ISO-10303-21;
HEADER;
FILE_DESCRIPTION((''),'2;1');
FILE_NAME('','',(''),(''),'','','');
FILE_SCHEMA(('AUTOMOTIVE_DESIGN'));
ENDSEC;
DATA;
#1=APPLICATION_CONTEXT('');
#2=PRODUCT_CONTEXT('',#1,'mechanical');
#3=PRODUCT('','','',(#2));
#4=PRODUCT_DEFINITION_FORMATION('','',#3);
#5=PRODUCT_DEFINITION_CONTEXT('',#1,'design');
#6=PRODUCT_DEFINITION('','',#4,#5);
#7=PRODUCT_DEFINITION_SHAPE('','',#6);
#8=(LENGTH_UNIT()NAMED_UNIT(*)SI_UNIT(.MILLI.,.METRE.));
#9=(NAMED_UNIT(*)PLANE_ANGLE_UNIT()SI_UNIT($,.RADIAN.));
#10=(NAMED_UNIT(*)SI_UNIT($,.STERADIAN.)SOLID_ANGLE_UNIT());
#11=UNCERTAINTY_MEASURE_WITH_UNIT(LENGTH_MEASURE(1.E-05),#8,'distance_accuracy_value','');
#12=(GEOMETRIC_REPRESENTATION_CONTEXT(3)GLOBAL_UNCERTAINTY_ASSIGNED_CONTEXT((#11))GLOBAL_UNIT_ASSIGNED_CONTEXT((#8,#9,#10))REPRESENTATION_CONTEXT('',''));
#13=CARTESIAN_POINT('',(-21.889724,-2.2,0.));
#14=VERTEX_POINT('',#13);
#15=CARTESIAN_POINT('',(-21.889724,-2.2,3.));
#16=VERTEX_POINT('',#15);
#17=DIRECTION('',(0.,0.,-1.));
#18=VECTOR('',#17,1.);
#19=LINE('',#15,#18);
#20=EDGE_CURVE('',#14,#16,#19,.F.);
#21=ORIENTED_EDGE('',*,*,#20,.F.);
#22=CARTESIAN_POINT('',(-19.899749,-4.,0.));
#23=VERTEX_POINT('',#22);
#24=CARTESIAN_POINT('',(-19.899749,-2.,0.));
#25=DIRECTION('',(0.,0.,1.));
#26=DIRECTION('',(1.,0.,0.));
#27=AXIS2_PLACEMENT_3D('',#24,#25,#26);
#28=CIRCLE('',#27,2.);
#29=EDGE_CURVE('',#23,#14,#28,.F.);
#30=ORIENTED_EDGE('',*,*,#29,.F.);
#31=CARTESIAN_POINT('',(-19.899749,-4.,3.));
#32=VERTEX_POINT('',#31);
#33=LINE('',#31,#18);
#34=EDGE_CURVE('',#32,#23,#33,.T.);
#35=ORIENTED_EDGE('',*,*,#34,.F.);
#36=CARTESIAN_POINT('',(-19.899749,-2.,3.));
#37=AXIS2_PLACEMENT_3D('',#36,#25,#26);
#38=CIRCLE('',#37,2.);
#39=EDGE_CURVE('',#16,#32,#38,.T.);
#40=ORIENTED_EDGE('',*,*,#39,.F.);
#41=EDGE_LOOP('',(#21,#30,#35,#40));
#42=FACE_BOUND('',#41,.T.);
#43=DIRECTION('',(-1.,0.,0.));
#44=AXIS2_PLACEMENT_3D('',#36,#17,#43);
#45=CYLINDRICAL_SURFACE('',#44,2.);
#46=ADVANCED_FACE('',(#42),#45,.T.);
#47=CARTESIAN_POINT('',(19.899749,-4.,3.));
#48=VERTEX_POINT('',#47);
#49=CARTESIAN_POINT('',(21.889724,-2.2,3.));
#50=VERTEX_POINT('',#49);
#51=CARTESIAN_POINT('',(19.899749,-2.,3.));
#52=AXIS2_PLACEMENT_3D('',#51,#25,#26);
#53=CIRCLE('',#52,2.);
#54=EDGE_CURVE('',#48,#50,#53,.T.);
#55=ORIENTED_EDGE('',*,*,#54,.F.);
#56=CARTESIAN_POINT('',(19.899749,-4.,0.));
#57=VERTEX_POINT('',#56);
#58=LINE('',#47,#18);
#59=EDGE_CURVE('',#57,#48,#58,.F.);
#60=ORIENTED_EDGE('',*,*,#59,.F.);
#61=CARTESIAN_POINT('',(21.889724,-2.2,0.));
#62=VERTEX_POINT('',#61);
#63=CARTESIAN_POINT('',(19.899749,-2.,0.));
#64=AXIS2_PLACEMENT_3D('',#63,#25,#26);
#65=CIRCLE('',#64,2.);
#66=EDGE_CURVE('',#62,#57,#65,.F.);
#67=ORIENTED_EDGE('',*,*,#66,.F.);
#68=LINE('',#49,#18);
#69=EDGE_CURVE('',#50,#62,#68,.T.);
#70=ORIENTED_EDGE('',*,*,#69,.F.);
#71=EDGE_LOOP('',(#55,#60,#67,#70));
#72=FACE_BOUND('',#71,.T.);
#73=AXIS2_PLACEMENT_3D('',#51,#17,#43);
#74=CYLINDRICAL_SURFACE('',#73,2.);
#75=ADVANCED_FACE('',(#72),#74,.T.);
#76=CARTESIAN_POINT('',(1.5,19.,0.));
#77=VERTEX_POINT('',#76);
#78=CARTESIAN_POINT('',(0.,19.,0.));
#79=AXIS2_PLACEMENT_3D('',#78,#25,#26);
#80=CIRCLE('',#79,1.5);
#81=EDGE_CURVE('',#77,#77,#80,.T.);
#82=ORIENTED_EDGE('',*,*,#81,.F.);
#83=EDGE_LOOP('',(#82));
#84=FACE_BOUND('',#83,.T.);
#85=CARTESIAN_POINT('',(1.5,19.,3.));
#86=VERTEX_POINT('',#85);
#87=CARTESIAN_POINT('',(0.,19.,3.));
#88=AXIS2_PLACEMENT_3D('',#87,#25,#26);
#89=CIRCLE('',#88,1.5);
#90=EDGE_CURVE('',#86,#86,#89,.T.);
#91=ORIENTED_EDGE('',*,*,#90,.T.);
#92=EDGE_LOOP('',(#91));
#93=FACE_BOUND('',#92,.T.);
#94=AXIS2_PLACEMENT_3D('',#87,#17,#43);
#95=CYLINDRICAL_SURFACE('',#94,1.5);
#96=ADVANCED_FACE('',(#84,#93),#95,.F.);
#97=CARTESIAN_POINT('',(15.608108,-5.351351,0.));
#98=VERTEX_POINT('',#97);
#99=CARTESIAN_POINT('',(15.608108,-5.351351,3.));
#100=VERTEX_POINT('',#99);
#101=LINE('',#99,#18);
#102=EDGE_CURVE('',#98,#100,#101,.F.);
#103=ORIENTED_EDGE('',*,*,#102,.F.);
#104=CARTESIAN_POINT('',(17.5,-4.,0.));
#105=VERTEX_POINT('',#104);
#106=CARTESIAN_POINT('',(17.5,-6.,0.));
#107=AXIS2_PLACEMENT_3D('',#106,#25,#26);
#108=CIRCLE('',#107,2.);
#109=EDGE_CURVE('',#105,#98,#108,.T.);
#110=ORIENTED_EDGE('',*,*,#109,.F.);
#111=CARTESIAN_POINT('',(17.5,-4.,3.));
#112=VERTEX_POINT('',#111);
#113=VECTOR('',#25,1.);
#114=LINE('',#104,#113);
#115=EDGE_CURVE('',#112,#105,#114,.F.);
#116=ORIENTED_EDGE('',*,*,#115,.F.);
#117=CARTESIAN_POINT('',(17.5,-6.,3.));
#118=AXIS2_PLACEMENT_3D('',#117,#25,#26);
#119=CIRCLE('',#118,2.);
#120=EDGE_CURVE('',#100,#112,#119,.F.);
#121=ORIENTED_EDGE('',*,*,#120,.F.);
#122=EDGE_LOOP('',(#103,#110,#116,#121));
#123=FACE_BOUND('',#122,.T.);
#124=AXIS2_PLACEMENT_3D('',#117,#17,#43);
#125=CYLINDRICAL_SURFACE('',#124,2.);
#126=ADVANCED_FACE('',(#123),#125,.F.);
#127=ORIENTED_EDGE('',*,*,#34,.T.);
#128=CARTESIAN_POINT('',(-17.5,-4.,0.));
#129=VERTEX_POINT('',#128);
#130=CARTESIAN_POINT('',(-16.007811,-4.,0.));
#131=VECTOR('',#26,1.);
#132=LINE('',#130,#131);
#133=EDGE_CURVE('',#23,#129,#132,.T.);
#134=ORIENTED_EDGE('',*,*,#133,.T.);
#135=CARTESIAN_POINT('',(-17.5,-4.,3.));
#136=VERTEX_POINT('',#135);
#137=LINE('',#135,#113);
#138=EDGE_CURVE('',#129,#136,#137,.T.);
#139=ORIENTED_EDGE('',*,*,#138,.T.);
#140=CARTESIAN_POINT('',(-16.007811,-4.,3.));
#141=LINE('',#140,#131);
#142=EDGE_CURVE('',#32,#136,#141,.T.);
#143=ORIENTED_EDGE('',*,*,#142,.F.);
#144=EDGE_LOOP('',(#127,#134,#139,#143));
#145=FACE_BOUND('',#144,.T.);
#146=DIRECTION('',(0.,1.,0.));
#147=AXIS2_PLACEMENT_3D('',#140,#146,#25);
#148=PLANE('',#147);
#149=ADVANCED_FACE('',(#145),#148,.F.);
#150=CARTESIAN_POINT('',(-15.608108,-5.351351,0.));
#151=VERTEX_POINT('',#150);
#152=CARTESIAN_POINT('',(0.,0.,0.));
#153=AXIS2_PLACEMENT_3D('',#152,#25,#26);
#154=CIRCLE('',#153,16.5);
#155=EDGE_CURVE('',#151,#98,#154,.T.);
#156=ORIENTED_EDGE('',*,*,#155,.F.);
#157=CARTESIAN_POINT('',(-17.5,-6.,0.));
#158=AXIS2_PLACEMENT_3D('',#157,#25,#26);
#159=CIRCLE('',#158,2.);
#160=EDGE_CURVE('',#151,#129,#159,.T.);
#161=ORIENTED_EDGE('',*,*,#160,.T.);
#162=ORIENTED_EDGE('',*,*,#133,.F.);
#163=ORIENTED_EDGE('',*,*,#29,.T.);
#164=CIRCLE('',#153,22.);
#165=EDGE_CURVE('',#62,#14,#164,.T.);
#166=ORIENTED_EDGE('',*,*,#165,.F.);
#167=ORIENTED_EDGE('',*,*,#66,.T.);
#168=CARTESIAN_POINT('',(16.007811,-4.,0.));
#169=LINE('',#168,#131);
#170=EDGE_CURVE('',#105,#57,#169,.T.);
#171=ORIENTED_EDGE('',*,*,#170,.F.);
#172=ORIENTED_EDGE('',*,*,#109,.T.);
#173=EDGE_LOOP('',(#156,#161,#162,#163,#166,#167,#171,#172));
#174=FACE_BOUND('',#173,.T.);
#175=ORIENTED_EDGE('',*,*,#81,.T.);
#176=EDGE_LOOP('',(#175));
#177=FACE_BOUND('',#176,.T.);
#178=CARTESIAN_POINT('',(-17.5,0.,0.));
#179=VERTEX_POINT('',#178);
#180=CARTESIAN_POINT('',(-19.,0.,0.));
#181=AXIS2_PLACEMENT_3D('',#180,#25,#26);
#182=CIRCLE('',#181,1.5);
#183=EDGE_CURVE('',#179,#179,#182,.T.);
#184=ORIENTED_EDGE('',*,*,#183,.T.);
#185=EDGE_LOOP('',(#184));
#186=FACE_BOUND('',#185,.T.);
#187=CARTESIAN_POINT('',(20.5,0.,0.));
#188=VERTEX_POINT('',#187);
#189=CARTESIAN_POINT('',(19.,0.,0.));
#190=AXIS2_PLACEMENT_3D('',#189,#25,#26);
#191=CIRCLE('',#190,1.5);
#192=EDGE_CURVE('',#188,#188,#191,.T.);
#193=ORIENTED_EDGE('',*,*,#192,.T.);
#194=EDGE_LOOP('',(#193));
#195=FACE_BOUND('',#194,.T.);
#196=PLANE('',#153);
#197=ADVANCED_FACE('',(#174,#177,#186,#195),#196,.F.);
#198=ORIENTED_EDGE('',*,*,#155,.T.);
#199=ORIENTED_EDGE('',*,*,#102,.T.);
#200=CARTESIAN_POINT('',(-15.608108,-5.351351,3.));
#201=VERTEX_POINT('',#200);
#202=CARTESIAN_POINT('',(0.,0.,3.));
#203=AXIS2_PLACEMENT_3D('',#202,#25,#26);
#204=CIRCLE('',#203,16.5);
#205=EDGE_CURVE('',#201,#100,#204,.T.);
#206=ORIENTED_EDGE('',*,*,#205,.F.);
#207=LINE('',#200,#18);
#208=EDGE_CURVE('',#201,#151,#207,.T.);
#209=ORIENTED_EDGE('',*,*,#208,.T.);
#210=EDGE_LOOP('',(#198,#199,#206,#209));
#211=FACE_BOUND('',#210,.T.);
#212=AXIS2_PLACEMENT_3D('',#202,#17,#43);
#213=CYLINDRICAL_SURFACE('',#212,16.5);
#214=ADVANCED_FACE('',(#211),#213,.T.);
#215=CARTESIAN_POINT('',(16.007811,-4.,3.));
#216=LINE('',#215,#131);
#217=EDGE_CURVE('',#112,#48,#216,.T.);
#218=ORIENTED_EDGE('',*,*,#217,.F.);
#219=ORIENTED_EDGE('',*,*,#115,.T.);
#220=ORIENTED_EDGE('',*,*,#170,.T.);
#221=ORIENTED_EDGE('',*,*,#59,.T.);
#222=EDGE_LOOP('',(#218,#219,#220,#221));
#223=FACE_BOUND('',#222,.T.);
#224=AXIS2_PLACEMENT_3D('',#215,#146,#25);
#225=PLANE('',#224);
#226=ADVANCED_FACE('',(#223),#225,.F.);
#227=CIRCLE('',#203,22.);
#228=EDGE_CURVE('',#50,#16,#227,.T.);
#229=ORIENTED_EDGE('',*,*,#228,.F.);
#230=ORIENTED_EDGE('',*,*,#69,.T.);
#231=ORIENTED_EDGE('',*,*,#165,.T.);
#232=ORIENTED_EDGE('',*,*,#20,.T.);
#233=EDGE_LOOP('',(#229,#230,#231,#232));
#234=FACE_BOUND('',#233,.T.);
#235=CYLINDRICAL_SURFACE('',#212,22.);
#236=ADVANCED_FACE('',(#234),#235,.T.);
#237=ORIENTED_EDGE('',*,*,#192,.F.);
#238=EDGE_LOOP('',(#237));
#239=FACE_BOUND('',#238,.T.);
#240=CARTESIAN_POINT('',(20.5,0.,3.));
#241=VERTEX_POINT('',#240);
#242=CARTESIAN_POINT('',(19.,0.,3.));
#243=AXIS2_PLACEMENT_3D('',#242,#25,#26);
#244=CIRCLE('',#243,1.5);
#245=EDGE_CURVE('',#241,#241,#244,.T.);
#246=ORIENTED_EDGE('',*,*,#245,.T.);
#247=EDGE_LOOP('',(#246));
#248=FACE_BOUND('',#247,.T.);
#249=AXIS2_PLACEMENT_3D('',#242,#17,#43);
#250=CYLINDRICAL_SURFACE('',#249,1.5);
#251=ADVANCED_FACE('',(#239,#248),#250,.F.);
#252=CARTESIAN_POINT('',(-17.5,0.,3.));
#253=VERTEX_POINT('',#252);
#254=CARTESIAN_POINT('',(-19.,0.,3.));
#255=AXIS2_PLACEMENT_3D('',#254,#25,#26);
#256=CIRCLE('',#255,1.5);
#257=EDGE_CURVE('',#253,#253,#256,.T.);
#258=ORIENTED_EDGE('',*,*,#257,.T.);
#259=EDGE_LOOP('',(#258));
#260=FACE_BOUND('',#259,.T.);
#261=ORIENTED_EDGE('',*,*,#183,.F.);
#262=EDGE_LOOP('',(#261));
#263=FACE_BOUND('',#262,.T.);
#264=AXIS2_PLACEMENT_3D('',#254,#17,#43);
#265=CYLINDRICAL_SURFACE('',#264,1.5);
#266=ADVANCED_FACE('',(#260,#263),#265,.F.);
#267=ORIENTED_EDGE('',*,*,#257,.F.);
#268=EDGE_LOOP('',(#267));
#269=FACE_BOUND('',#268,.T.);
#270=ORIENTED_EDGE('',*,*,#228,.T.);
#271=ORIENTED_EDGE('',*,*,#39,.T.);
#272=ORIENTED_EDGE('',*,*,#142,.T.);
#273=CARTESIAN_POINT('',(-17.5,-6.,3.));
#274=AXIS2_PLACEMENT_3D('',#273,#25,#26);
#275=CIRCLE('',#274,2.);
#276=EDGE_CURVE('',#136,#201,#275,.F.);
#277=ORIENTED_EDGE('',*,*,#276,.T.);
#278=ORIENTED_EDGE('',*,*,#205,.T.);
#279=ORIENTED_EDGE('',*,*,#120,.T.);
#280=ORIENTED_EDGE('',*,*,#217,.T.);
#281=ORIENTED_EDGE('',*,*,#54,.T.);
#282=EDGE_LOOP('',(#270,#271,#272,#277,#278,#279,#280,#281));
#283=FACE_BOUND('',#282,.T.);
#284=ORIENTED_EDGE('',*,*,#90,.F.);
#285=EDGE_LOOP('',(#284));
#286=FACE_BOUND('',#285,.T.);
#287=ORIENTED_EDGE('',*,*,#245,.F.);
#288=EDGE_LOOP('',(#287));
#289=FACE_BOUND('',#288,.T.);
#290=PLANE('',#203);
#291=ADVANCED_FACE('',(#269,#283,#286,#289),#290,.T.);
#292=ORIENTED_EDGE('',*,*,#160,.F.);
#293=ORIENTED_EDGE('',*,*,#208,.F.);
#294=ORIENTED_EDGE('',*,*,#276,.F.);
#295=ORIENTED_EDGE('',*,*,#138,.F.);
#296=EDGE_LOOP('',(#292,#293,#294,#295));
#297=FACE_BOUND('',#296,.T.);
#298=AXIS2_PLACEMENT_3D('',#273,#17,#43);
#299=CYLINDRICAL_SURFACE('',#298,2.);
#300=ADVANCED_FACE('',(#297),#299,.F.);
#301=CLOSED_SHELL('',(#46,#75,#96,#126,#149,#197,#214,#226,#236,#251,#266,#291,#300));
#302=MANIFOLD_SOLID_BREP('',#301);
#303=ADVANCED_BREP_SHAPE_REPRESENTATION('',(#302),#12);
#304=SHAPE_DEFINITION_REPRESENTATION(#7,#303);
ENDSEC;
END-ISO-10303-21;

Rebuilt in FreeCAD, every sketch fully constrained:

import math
import FreeCAD as App
import Part
import Sketcher
Q = App.Units.Quantity


def edges_at(feature, points):
    """Names of the edges that pass closest to the given points."""
    edges = feature.Shape.Edges
    near = lambda p: min(range(len(edges)), key=lambda i: edges[i].distToShape(Part.Vertex(*p))[0])
    return sorted({f"Edge{near(p) + 1}" for p in points})

doc = App.newDocument("Part")
body = doc.addObject("PartDesign::Body", "Body")

# Sketch on XY plane
sketch1 = body.newObject("Sketcher::SketchObject", "Sketch")
sketch1.AttachmentSupport = (doc.getObject("XY_Plane"), [""])
sketch1.MapMode = "FlatFace"
sketch1.addGeometry([
    Part.LineSegment(App.Vector(-21.633308, -4, 0), App.Vector(-16.007811, -4, 0)),  # 0
    Part.ArcOfCircle(Part.Circle(App.Vector(0, 0, 0), App.Vector(0, 0, 1), 16.5), math.radians(-165.970335), math.radians(-14.029665)),  # 1
    Part.LineSegment(App.Vector(16.007811, -4, 0), App.Vector(21.633308, -4, 0)),  # 2
    Part.ArcOfCircle(Part.Circle(App.Vector(0, 0, 0), App.Vector(0, 0, 1), 22), math.radians(-10.475682), math.radians(190.475682)),  # 3
    Part.Circle(App.Vector(19, 0, 0), App.Vector(0, 0, 1), 1.5),  # 4
    Part.Circle(App.Vector(-19, 0, 0), App.Vector(0, 0, 1), 1.5),  # 5
    Part.Circle(App.Vector(0, 19, 0), App.Vector(0, 0, 1), 1.5),  # 6
], False)
sketch1.addConstraint([
    Sketcher.Constraint("Coincident", 0, 2, 1, 1),
    Sketcher.Constraint("Coincident", 1, 2, 2, 1),
    Sketcher.Constraint("Coincident", 2, 2, 3, 1),
    Sketcher.Constraint("Coincident", 3, 2, 0, 1),
    Sketcher.Constraint("Horizontal", 0),
    Sketcher.Constraint("Horizontal", 2),
    Sketcher.Constraint("Coincident", 1, 3, -1, 1),
    Sketcher.Constraint("Coincident", 3, 3, -1, 1),
    Sketcher.Constraint("Equal", 4, 5),
    Sketcher.Constraint("Equal", 5, 6),
    Sketcher.Constraint("Symmetric", 4, 3, 5, 3, -1, 1),
    Sketcher.Constraint("PointOnObject", 4, 3, -1),
    Sketcher.Constraint("PointOnObject", 6, 3, -2),
    Sketcher.Constraint("Horizontal", 0, 2, 1, 2),
    Sketcher.Constraint("Diameter", 4, Q("3 mm")),
    Sketcher.Constraint("Radius", 3, Q("22 mm")),
    Sketcher.Constraint("Radius", 1, Q("16.5 mm")),
    Sketcher.Constraint("DistanceX", -1, 1, 4, 3, Q("19 mm")),
    Sketcher.Constraint("DistanceY", -1, 1, 6, 3, Q("19 mm")),
    Sketcher.Constraint("DistanceY", 0, 2, -1, 1, Q("4 mm")),
])
pad1 = body.newObject("PartDesign::Pad", "Pad")
pad1.Profile = sketch1
pad1.Length = 3
doc.recompute()

fillet = body.newObject("PartDesign::Fillet", "Fillet")
fillet.Base = (pad1, edges_at(pad1, [
    (-16.008, -4, 1.5),
    (-21.633, -4, 1.5),
    (21.633, -4, 1.5),
    (16.008, -4, 1.5),
]))
fillet.Radius = 2

doc.recompute()
